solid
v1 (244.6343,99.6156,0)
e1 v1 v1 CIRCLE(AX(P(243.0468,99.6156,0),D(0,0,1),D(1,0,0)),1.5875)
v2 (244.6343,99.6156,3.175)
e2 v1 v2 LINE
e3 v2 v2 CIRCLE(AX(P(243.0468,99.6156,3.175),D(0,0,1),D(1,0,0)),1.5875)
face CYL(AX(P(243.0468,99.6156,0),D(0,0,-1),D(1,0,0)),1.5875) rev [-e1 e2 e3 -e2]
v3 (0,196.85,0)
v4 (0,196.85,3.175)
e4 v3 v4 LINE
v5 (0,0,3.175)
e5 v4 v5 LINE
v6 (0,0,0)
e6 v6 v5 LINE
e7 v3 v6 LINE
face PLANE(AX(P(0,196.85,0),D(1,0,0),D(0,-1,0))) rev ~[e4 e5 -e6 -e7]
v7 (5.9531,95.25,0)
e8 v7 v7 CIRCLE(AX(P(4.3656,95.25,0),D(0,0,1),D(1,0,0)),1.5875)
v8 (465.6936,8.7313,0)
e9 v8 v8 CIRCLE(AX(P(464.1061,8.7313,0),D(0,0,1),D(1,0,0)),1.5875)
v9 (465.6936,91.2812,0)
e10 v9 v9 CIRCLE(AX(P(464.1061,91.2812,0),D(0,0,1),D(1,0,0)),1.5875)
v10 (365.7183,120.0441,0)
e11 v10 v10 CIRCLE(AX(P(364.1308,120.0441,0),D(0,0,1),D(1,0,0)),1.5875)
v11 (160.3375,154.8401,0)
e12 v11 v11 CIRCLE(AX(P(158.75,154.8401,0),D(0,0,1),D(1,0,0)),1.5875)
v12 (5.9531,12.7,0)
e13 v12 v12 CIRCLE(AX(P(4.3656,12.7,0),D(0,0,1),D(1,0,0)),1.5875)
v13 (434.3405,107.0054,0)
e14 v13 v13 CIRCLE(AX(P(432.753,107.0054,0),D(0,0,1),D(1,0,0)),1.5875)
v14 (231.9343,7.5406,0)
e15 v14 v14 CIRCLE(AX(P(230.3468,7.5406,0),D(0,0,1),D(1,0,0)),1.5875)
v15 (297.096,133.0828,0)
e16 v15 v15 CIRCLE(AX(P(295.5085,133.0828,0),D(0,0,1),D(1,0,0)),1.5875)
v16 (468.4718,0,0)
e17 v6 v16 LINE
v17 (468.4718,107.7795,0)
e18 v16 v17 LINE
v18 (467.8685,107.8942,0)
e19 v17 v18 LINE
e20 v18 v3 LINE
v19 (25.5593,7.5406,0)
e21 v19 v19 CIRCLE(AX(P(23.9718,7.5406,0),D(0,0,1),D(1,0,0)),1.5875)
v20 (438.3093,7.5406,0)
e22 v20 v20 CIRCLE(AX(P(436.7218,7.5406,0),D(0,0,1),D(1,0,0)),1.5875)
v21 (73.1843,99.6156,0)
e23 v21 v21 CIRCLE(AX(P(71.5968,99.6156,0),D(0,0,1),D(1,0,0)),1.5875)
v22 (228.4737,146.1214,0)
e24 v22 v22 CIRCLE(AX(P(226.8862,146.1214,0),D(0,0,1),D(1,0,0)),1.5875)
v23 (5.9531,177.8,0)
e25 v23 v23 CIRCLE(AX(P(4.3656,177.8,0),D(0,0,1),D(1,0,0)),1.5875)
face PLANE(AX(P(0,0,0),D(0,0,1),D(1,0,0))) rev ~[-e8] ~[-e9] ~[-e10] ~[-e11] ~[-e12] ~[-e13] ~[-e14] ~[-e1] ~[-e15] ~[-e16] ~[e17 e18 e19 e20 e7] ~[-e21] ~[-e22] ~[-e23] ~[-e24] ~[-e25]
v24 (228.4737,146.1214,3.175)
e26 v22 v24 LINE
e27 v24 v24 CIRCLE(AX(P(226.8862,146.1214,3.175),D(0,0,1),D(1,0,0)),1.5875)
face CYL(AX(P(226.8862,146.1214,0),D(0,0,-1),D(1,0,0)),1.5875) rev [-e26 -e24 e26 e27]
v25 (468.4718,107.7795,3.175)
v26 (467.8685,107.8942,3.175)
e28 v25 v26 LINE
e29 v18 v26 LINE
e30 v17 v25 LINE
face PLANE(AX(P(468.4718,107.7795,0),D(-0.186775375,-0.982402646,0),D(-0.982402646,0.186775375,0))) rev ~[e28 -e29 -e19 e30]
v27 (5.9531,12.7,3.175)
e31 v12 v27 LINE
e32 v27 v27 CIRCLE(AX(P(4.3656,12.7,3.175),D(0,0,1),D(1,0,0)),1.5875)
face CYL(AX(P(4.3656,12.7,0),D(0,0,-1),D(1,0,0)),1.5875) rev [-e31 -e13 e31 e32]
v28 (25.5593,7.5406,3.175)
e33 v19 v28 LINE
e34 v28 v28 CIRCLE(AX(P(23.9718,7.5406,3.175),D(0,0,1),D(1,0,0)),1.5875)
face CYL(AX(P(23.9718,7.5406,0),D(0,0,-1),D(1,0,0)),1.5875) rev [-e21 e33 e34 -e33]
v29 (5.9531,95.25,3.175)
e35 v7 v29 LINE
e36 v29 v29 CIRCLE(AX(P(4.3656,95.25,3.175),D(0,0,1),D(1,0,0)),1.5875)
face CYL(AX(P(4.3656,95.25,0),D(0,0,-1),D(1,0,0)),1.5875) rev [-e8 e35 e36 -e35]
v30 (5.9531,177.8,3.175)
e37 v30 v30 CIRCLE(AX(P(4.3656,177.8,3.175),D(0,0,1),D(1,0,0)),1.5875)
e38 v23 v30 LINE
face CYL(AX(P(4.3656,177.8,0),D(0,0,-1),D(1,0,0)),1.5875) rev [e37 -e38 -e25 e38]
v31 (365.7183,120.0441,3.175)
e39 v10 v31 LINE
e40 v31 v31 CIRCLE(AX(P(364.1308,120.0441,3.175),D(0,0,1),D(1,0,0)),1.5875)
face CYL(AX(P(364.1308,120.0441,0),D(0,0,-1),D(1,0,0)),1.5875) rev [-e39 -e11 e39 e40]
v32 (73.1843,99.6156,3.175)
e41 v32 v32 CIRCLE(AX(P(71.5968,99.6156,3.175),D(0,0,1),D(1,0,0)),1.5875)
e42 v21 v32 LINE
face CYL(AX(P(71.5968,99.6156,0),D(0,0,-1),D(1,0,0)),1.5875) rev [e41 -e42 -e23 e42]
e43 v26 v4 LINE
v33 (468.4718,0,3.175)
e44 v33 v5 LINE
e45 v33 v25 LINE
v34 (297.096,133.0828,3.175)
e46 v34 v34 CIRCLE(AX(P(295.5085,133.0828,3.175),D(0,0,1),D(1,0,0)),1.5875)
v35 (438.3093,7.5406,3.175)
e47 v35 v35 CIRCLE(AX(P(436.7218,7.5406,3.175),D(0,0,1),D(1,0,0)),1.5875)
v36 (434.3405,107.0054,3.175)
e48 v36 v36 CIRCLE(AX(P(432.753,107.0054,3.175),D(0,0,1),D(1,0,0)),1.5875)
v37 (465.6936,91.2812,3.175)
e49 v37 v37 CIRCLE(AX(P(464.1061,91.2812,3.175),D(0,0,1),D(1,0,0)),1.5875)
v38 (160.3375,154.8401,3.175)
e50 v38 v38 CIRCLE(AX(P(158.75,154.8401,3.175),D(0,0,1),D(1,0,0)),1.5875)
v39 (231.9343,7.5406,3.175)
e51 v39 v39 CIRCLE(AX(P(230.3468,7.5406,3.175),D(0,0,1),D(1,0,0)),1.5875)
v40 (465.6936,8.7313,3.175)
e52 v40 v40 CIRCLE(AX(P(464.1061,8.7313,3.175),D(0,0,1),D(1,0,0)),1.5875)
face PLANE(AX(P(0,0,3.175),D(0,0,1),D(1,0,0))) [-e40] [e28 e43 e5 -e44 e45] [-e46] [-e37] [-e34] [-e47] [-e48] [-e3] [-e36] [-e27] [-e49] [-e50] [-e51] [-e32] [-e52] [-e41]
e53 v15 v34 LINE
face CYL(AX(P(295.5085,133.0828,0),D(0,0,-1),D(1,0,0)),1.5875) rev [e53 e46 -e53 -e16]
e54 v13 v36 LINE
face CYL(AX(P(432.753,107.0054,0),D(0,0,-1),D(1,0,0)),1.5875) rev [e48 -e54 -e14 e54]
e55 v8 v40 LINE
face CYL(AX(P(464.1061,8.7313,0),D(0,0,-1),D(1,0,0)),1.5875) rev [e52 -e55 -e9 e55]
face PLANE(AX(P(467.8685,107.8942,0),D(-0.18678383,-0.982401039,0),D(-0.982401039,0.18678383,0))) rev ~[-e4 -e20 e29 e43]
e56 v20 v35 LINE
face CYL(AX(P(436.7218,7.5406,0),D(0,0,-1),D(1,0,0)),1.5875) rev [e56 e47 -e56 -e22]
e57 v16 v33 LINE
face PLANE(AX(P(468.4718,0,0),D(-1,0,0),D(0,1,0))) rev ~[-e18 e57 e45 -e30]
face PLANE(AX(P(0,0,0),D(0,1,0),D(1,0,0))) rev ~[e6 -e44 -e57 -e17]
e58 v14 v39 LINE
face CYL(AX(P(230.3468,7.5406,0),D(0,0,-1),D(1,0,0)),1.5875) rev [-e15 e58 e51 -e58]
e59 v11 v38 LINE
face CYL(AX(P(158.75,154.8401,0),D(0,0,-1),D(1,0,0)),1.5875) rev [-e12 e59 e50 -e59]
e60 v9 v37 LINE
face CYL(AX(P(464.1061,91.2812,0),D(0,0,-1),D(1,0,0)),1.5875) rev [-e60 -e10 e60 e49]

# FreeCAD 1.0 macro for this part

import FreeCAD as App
import Part
import Sketcher
Q = App.Units.Quantity


def add_polygon(sketch, points):
    """Adds a closed chain of lines whose ends are joined by coincident constraints."""
    first, n = sketch.GeometryCount, len(points)
    for a, b in zip(points, points[1:] + points[:1]):
        sketch.addGeometry(Part.LineSegment(App.Vector(*a, 0), App.Vector(*b, 0)), False)
    for i in range(n):
        sketch.addConstraint(Sketcher.Constraint("Coincident", first + i, 2, first + (i + 1) % n, 1))

doc = App.newDocument("Part")
body = doc.addObject("PartDesign::Body", "Body")

sketch1 = body.newObject("Sketcher::SketchObject", "Sketch")
sketch1.AttachmentSupport = (doc.getObject("XY_Plane"), [""])
sketch1.MapMode = "FlatFace"
add_polygon(sketch1, [(0, 0), (468.5, 0), (468.5, 107.8), (467.9, 107.9), (0, 196.8)])
sketch1.addGeometry(Part.Circle(App.Vector(24, 7.5, 0), App.Vector(0, 0, 1), 1.6), False)
sketch1.addGeometry(Part.Circle(App.Vector(4.4, 12.7, 0), App.Vector(0, 0, 1), 1.6), False)
sketch1.addGeometry(Part.Circle(App.Vector(230.3, 7.5, 0), App.Vector(0, 0, 1), 1.6), False)
sketch1.addGeometry(Part.Circle(App.Vector(4.4, 95.2, 0), App.Vector(0, 0, 1), 1.6), False)
sketch1.addGeometry(Part.Circle(App.Vector(436.7, 7.5, 0), App.Vector(0, 0, 1), 1.6), False)
sketch1.addGeometry(Part.Circle(App.Vector(464.1, 8.7, 0), App.Vector(0, 0, 1), 1.6), False)
sketch1.addGeometry(Part.Circle(App.Vector(464.1, 91.3, 0), App.Vector(0, 0, 1), 1.6), False)
sketch1.addGeometry(Part.Circle(App.Vector(71.6, 99.6, 0), App.Vector(0, 0, 1), 1.6), False)
sketch1.addGeometry(Part.Circle(App.Vector(226.9, 146.1, 0), App.Vector(0, 0, 1), 1.6), False)
sketch1.addGeometry(Part.Circle(App.Vector(4.4, 177.8, 0), App.Vector(0, 0, 1), 1.6), False)
sketch1.addGeometry(Part.Circle(App.Vector(158.8, 154.8, 0), App.Vector(0, 0, 1), 1.6), False)
sketch1.addGeometry(Part.Circle(App.Vector(243, 99.6, 0), App.Vector(0, 0, 1), 1.6), False)
sketch1.addGeometry(Part.Circle(App.Vector(295.5, 133.1, 0), App.Vector(0, 0, 1), 1.6), False)
sketch1.addGeometry(Part.Circle(App.Vector(364.1, 120, 0), App.Vector(0, 0, 1), 1.6), False)
sketch1.addGeometry(Part.Circle(App.Vector(432.8, 107, 0), App.Vector(0, 0, 1), 1.6), False)
sketch1.addConstraint([
    Sketcher.Constraint("Horizontal", 0),
    Sketcher.Constraint("Vertical", 1),
    Sketcher.Constraint("Vertical", 4),
    Sketcher.Constraint("Coincident", 4, 2, -1, 1),
    Sketcher.Constraint("Equal", 5, 6),
    Sketcher.Constraint("Equal", 6, 7),
    Sketcher.Constraint("Equal", 7, 8),
    Sketcher.Constraint("Equal", 8, 9),
    Sketcher.Constraint("Equal", 9, 10),
    Sketcher.Constraint("Equal", 10, 11),
    Sketcher.Constraint("Equal", 11, 12),
    Sketcher.Constraint("Equal", 12, 13),
    Sketcher.Constraint("Equal", 13, 14),
    Sketcher.Constraint("Equal", 14, 15),
    Sketcher.Constraint("Equal", 15, 16),
    Sketcher.Constraint("Equal", 16, 17),
    Sketcher.Constraint("Equal", 17, 18),
    Sketcher.Constraint("Equal", 18, 19),
    Sketcher.Constraint("Parallel", 2, 3),
    Sketcher.Constraint("Horizontal", 5, 3, 7, 3),
    Sketcher.Constraint("Horizontal", 7, 3, 9, 3),
    Sketcher.Constraint("Horizontal", 12, 3, 16, 3),
    Sketcher.Constraint("Vertical", 6, 3, 8, 3),
    Sketcher.Constraint("Vertical", 10, 3, 11, 3),
    Sketcher.Constraint("Vertical", 8, 3, 14, 3),
    Sketcher.Constraint("Diameter", 5, Q("0.125 in")),
    Sketcher.Constraint("DistanceY", -1, 1, 14, 3, Q("7 in")),
    Sketcher.Constraint("DistanceY", 8, 3, 3, 2, Q("4 in")),
    Sketcher.Constraint("DistanceY", 4, 2, 4, 1, Q("7.75 in")),
    Sketcher.Constraint("DistanceY", -1, 1, 6, 3, Q("0.5 in")),
    Sketcher.Constraint("DistanceX", 7, 3, 16, 3, Q("0.5 in")),
    Sketcher.Constraint("Distance", 3, Q("18.75 in")),
    Sketcher.Constraint("DistanceX", -1, 1, 15, 3, Q("6.25 in")),
    Sketcher.Constraint("DistanceX", 5, 3, 9, 3, Q("16.25 in")),
    Sketcher.Constraint("DistanceY", 10, 3, 11, 3, Q("3.25 in")),
    Sketcher.Constraint("DistanceX", 12, 3, 7, 3, Q("6.25 in")),
    Sketcher.Constraint("DistanceX", 9, 3, 0, 2, Q("1.25 in")),
    Sketcher.Constraint("DistanceY", -1, 1, 5, 3, Q("0.296874 in")),
    Sketcher.Constraint("DistanceX", -1, 1, 6, 3, Q("0.171874 in")),
    Sketcher.Constraint("DistanceY", -1, 1, 10, 3, Q("0.343752 in")),
    Sketcher.Constraint("DistanceY", -1, 1, 12, 3, Q("3.921874 in")),
    Sketcher.Constraint("DistanceX", 5, 3, 7, 3, Q("8.125 in")),
    Sketcher.Constraint("DistanceX", 9, 3, 10, 3, Q("1.078122 in")),
    Sketcher.Constraint("DistanceX", 19, 3, 11, 3, Q("1.2343701 in")),
    Sketcher.Constraint("DistanceY", 19, 3, 2, 2, Q("0.035 in")),
    Sketcher.Constraint("DistanceX", 0, 1, 0, 2, 468.4718),
    Sketcher.Constraint("DistanceY", 1, 1, 1, 2, 107.7795),
    Sketcher.Constraint("DistanceY", -1, 1, 13, 3, Q("5.7528 in")),
    Sketcher.Constraint("DistanceX", -1, 1, 17, 3, Q("11.6342 in")),
    Sketcher.Constraint("DistanceY", 12, 3, 15, 3, Q("2.1742 in")),
    Sketcher.Constraint("DistanceY", 16, 3, 17, 3, Q("1.3176 in")),
    Sketcher.Constraint("DistanceY", 11, 3, 18, 3, Q("1.1324 in")),
    Sketcher.Constraint("DistanceX", -1, 1, 13, 3, 226.8862),
    Sketcher.Constraint("DistanceX", -1, 1, 18, 3, 364.1308),
])
pad1 = body.newObject("PartDesign::Pad", "Pad")
pad1.Profile = sketch1
pad1.Length = Q("0.125 in")

doc.recompute()
